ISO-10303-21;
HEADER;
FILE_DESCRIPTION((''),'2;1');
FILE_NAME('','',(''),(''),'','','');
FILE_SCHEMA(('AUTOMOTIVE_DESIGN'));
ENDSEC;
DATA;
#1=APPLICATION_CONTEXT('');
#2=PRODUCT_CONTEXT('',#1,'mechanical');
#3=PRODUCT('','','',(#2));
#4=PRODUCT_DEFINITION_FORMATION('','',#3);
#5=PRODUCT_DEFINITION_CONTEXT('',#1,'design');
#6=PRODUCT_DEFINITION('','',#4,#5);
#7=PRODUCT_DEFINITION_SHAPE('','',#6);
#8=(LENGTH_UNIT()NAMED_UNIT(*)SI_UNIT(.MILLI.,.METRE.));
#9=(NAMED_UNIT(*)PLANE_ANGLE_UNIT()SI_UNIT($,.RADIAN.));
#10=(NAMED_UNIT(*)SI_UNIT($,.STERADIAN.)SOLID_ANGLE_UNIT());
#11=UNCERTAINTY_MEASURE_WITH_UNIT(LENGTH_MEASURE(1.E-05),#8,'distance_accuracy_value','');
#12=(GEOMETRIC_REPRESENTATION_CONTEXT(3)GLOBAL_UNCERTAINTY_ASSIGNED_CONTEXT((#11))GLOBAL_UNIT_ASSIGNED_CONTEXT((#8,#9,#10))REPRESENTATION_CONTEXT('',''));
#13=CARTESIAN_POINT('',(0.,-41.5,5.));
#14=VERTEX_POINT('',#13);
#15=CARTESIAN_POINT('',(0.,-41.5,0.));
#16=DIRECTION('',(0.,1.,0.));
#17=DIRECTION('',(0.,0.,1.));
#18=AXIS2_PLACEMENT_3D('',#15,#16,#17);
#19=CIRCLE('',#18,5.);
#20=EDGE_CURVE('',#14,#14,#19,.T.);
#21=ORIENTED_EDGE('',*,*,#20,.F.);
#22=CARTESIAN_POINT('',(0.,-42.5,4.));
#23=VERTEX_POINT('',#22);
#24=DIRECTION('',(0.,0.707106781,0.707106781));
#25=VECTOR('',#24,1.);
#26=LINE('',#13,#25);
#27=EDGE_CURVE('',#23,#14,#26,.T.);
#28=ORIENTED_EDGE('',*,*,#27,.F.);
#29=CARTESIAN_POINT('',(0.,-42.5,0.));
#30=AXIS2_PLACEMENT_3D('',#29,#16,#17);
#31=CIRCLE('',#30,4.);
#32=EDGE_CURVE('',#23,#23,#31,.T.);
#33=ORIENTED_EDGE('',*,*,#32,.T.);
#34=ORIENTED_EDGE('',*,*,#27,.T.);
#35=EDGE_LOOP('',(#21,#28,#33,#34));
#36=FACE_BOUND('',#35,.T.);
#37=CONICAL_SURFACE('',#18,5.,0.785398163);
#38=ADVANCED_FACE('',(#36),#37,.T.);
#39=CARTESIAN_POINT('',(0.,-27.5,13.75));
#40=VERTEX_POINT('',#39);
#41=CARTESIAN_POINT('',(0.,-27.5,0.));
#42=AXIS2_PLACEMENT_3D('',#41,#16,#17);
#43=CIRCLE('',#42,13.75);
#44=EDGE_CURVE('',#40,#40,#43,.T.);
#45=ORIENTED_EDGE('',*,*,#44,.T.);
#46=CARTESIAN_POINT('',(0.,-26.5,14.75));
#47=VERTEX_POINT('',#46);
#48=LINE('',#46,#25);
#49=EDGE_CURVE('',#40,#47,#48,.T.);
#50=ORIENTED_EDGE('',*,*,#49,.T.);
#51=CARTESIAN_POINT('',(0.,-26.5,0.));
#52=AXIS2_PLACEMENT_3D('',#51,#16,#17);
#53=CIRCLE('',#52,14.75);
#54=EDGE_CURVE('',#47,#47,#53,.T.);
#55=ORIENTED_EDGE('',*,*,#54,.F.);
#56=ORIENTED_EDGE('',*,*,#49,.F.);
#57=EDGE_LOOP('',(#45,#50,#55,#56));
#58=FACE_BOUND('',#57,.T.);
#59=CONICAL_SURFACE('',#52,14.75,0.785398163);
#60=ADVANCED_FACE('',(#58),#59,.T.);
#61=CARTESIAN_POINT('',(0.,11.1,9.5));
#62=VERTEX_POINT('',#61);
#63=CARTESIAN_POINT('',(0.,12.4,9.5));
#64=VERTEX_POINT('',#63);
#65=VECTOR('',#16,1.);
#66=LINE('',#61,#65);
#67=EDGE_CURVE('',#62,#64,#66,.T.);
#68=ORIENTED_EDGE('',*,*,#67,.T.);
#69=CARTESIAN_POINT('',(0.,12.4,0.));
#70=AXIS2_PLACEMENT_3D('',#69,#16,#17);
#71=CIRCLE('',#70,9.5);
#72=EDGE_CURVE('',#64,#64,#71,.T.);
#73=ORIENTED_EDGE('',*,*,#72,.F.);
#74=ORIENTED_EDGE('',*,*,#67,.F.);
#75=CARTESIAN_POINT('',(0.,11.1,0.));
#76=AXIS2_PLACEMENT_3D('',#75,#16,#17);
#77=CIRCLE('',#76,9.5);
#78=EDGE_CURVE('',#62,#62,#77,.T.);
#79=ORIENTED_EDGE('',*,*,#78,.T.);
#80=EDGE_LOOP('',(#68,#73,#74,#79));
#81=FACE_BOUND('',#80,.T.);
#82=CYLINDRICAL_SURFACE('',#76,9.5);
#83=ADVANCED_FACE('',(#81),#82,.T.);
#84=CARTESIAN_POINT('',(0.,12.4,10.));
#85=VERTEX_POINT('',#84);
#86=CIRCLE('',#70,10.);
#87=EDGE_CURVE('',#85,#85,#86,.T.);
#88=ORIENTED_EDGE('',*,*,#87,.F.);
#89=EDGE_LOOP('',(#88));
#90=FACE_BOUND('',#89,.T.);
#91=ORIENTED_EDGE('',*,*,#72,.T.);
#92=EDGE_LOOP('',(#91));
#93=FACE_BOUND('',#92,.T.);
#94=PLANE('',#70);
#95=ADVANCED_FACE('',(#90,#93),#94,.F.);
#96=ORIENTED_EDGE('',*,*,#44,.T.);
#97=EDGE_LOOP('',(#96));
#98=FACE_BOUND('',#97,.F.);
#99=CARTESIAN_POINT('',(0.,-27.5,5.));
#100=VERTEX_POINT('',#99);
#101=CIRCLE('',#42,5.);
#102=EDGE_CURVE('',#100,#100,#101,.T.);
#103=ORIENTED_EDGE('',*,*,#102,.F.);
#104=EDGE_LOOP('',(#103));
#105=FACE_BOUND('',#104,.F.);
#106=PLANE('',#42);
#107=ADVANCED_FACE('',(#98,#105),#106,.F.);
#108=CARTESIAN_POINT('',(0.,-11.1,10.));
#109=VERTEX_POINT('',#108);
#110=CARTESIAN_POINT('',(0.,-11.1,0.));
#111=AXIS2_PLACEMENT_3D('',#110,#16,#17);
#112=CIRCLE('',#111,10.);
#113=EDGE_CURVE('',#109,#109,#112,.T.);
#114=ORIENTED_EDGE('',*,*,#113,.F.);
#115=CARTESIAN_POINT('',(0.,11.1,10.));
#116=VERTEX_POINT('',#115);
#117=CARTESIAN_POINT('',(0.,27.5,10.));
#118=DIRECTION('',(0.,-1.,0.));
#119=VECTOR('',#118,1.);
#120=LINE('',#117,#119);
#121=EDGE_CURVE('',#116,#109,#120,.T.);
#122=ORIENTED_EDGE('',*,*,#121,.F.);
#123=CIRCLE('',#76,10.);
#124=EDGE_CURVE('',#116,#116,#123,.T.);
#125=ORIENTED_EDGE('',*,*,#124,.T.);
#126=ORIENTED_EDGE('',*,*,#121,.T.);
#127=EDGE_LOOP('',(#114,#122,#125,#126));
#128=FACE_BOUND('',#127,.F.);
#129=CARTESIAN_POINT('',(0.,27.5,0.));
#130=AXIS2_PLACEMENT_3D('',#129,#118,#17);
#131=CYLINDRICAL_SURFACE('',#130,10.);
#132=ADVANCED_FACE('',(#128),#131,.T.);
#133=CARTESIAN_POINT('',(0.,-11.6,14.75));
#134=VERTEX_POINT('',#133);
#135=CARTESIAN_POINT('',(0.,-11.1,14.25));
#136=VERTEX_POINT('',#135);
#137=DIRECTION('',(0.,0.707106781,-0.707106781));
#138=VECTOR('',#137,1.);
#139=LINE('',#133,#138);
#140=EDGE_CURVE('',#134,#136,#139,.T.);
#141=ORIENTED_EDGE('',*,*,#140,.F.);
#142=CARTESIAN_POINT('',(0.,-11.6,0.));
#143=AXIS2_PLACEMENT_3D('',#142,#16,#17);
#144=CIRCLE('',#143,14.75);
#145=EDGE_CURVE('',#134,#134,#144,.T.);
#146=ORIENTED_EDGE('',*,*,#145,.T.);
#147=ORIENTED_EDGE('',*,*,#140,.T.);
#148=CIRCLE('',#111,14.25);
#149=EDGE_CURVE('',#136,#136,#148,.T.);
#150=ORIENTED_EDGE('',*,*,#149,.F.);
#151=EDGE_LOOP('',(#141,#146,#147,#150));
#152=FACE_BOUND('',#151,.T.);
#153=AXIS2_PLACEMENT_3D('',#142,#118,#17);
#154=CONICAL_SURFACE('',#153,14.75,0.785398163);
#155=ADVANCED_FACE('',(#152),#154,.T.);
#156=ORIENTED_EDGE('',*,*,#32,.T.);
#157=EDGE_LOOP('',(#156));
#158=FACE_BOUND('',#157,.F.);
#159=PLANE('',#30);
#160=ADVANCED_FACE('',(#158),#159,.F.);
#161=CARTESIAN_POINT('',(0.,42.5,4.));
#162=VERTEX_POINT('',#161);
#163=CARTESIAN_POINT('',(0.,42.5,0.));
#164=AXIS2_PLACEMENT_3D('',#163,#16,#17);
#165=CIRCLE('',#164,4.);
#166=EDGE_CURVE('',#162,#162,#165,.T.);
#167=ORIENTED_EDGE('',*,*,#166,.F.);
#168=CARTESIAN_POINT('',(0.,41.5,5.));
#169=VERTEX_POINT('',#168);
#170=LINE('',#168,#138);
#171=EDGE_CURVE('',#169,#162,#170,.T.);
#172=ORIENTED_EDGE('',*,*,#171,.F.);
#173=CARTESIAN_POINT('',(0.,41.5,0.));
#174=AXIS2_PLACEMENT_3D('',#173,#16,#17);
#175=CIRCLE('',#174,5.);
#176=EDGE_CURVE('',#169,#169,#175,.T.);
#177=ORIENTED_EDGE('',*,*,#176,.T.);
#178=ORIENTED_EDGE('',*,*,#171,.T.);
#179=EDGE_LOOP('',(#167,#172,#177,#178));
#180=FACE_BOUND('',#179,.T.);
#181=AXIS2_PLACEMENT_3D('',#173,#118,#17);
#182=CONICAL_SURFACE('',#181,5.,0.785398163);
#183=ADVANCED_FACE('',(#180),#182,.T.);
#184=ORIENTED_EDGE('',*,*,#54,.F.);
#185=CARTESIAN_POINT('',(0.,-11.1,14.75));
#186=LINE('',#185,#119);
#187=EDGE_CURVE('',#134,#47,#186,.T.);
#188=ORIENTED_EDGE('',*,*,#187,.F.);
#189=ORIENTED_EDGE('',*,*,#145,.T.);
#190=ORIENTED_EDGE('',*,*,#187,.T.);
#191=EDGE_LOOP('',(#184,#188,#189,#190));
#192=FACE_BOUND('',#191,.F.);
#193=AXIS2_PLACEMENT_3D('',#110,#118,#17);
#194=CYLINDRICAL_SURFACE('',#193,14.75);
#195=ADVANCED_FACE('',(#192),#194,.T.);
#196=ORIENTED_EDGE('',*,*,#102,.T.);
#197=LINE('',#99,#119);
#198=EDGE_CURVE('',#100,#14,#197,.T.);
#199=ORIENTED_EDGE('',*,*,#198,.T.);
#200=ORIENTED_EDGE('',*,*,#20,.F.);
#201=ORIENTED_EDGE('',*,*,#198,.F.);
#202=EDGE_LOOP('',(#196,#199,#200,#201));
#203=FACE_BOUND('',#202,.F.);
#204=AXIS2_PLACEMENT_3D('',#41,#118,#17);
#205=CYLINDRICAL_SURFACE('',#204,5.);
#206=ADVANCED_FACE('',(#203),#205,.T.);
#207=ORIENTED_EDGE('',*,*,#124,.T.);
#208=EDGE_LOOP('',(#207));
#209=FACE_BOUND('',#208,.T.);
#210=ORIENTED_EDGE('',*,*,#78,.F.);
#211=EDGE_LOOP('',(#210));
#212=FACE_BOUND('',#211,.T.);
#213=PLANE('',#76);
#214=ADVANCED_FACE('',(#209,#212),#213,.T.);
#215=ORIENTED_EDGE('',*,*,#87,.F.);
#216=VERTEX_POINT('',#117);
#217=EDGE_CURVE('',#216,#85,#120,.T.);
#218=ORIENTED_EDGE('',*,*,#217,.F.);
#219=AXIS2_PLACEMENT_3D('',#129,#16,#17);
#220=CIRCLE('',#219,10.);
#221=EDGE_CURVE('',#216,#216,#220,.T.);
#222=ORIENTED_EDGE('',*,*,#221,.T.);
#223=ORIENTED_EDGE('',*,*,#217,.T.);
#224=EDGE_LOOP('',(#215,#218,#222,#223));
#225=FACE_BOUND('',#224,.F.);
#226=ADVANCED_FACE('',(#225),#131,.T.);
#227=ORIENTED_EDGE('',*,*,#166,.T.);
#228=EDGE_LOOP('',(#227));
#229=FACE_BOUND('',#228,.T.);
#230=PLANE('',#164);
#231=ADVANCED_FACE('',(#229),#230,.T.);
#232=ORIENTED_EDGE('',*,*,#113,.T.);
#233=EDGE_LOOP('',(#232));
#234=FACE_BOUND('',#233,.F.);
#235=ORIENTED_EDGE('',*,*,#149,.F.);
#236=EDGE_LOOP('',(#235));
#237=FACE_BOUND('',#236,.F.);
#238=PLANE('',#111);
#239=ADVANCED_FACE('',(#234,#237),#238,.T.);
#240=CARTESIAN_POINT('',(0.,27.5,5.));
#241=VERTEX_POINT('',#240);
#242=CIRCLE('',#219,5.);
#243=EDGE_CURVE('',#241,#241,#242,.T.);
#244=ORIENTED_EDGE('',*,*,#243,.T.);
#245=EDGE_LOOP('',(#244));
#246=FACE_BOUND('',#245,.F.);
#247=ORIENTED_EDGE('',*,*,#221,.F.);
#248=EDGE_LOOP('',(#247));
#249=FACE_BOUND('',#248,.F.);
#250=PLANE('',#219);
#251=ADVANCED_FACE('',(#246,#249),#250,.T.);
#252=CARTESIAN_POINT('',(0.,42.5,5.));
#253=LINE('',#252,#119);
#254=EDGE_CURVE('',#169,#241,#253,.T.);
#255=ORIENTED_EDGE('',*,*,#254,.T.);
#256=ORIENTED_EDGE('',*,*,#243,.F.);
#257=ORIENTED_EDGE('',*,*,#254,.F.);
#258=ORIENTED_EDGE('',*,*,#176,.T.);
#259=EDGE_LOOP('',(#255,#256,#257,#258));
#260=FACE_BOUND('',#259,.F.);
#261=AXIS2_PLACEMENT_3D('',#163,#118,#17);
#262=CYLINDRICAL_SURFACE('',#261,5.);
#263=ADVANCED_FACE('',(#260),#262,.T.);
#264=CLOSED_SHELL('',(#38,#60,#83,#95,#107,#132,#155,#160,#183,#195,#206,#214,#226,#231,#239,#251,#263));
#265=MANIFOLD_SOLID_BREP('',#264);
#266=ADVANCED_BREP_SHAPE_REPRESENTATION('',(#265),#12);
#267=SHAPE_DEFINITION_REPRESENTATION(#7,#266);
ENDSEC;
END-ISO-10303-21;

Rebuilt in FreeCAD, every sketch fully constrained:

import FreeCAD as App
import Part
import Sketcher
from FreeCAD import Vector
Q = App.Units.Quantity


def edges_at(feature, points):
    """Names of the edges that pass closest to the given points."""
    edges = feature.Shape.Edges
    near = lambda p: min(range(len(edges)), key=lambda i: edges[i].distToShape(Part.Vertex(*p))[0])
    return sorted({f"Edge{near(p) + 1}" for p in points})

doc = App.newDocument("Part")
body = doc.addObject("PartDesign::Body", "Body")

# Sketch on YZ plane
sketch1 = body.newObject("Sketcher::SketchObject", "Sketch")
sketch1.AttachmentSupport = (doc.getObject("YZ_Plane"), [""])
sketch1.MapMode = "FlatFace"
sketch1.addGeometry(Part.LineSegment(Vector(-42.5, 5, 0), Vector(-42.5, 0, 0)), False)
sketch1.addGeometry(Part.LineSegment(Vector(-42.5, 0, 0), Vector(42.5, 0, 0)), False)
sketch1.addGeometry(Part.LineSegment(Vector(42.5, 0, 0), Vector(42.5, 5, 0)), False)
sketch1.addGeometry(Part.LineSegment(Vector(42.5, 5, 0), Vector(27.5, 5, 0)), False)
sketch1.addGeometry(Part.LineSegment(Vector(27.5, 5, 0), Vector(27.5, 10, 0)), False)
sketch1.addGeometry(Part.LineSegment(Vector(27.5, 10, 0), Vector(-11.1, 10, 0)), False)
sketch1.addGeometry(Part.LineSegment(Vector(-11.1, 10, 0), Vector(-11.1, 14.8, 0)), False)
sketch1.addGeometry(Part.LineSegment(Vector(-11.1, 14.8, 0), Vector(-27.5, 14.8, 0)), False)
sketch1.addGeometry(Part.LineSegment(Vector(-27.5, 14.8, 0), Vector(-27.5, 5, 0)), False)
sketch1.addGeometry(Part.LineSegment(Vector(-27.5, 5, 0), Vector(-42.5, 5, 0)), False)
sketch1.addConstraint(Sketcher.Constraint("Coincident", 0, 2, 1, 1))
sketch1.addConstraint(Sketcher.Constraint("Coincident", 1, 2, 2, 1))
sketch1.addConstraint(Sketcher.Constraint("Coincident", 2, 2, 3, 1))
sketch1.addConstraint(Sketcher.Constraint("Coincident", 3, 2, 4, 1))
sketch1.addConstraint(Sketcher.Constraint("Coincident", 4, 2, 5, 1))
sketch1.addConstraint(Sketcher.Constraint("Coincident", 5, 2, 6, 1))
sketch1.addConstraint(Sketcher.Constraint("Coincident", 6, 2, 7, 1))
sketch1.addConstraint(Sketcher.Constraint("Coincident", 7, 2, 8, 1))
sketch1.addConstraint(Sketcher.Constraint("Coincident", 8, 2, 9, 1))
sketch1.addConstraint(Sketcher.Constraint("Coincident", 9, 2, 0, 1))
sketch1.addConstraint(Sketcher.Constraint("Vertical", 0))
sketch1.addConstraint(Sketcher.Constraint("Horizontal", 1))
sketch1.addConstraint(Sketcher.Constraint("Vertical", 2))
sketch1.addConstraint(Sketcher.Constraint("Horizontal", 3))
sketch1.addConstraint(Sketcher.Constraint("Vertical", 4))
sketch1.addConstraint(Sketcher.Constraint("Horizontal", 5))
sketch1.addConstraint(Sketcher.Constraint("Vertical", 6))
sketch1.addConstraint(Sketcher.Constraint("Horizontal", 7))
sketch1.addConstraint(Sketcher.Constraint("Vertical", 8))
sketch1.addConstraint(Sketcher.Constraint("Horizontal", 9))
sketch1.addConstraint(Sketcher.Constraint("Symmetric", 0, 2, 1, 2, -1, 1))
sketch1.addConstraint(Sketcher.Constraint("Symmetric", 3, 2, 8, 2, -2))
sketch1.addConstraint(Sketcher.Constraint("Equal", 2, 4))
sketch1.addConstraint(Sketcher.Constraint("DistanceX", 3, 2, 3, 1, Q("15 mm")))
sketch1.addConstraint(Sketcher.Constraint("DistanceY", -1, 1, 4, 2, Q("10 mm")))
sketch1.addConstraint(Sketcher.Constraint("DistanceX", 7, 2, 4, 2, Q("55 mm")))
sketch1.addConstraint(Sketcher.Constraint("DistanceX", 5, 2, 5, 1, Q("38.6 mm")))
sketch1.addConstraint(Sketcher.Constraint("DistanceY", 6, 1, 6, 2, Q("4.75 mm")))
revolution = body.newObject("PartDesign::Revolution", "Revolution")
revolution.Profile = sketch1
revolution.ReferenceAxis = (sketch1, ["H_Axis"])
revolution.Angle = 360

# Sketch on YZ plane
sketch2 = body.newObject("Sketcher::SketchObject", "Sketch001")
sketch2.AttachmentSupport = (doc.getObject("YZ_Plane"), [""])
sketch2.MapMode = "FlatFace"
sketch2.addGeometry(Part.LineSegment(Vector(12.4, 10, 0), Vector(11.1, 10, 0)), False)
sketch2.addGeometry(Part.LineSegment(Vector(11.1, 10, 0), Vector(11.1, 9.5, 0)), False)
sketch2.addGeometry(Part.LineSegment(Vector(11.1, 9.5, 0), Vector(12.4, 9.5, 0)), False)
sketch2.addGeometry(Part.LineSegment(Vector(12.4, 9.5, 0), Vector(12.4, 10, 0)), False)
sketch2.addConstraint(Sketcher.Constraint("Coincident", 0, 2, 1, 1))
sketch2.addConstraint(Sketcher.Constraint("Coincident", 1, 2, 2, 1))
sketch2.addConstraint(Sketcher.Constraint("Coincident", 2, 2, 3, 1))
sketch2.addConstraint(Sketcher.Constraint("Coincident", 3, 2, 0, 1))
sketch2.addConstraint(Sketcher.Constraint("Horizontal", 0))
sketch2.addConstraint(Sketcher.Constraint("Vertical", 1))
sketch2.addConstraint(Sketcher.Constraint("Horizontal", 2))
sketch2.addConstraint(Sketcher.Constraint("Vertical", 3))
sketch2.addConstraint(Sketcher.Constraint("DistanceX", 0, 2, 0, 1, Q("1.3 mm")))
sketch2.addConstraint(Sketcher.Constraint("DistanceY", 1, 2, 1, 1, Q("0.5 mm")))
sketch2.addConstraint(Sketcher.Constraint("DistanceY", -1, 1, 0, 2, Q("10 mm")))
sketch2.addConstraint(Sketcher.Constraint("DistanceX", -1, 1, 0, 2, Q("11.1 mm")))
groove = body.newObject("PartDesign::Groove", "Groove")
groove.Profile = sketch2
groove.ReferenceAxis = (sketch2, ["H_Axis"])
groove.Angle = 360
doc.recompute()

chamfer = body.newObject("PartDesign::Chamfer", "Chamfer")
chamfer.Base = (groove, edges_at(groove, [(0, -42.5, -5), (0, 42.5, -5), (0, -27.5, -14.75)]))
chamfer.Size = 1
doc.recompute()

chamfer2 = body.newObject("PartDesign::Chamfer", "Chamfer001")
chamfer2.Base = (chamfer, edges_at(chamfer, [(0, -11.1, -14.75)]))
chamfer2.Size = 0.5

doc.recompute()
